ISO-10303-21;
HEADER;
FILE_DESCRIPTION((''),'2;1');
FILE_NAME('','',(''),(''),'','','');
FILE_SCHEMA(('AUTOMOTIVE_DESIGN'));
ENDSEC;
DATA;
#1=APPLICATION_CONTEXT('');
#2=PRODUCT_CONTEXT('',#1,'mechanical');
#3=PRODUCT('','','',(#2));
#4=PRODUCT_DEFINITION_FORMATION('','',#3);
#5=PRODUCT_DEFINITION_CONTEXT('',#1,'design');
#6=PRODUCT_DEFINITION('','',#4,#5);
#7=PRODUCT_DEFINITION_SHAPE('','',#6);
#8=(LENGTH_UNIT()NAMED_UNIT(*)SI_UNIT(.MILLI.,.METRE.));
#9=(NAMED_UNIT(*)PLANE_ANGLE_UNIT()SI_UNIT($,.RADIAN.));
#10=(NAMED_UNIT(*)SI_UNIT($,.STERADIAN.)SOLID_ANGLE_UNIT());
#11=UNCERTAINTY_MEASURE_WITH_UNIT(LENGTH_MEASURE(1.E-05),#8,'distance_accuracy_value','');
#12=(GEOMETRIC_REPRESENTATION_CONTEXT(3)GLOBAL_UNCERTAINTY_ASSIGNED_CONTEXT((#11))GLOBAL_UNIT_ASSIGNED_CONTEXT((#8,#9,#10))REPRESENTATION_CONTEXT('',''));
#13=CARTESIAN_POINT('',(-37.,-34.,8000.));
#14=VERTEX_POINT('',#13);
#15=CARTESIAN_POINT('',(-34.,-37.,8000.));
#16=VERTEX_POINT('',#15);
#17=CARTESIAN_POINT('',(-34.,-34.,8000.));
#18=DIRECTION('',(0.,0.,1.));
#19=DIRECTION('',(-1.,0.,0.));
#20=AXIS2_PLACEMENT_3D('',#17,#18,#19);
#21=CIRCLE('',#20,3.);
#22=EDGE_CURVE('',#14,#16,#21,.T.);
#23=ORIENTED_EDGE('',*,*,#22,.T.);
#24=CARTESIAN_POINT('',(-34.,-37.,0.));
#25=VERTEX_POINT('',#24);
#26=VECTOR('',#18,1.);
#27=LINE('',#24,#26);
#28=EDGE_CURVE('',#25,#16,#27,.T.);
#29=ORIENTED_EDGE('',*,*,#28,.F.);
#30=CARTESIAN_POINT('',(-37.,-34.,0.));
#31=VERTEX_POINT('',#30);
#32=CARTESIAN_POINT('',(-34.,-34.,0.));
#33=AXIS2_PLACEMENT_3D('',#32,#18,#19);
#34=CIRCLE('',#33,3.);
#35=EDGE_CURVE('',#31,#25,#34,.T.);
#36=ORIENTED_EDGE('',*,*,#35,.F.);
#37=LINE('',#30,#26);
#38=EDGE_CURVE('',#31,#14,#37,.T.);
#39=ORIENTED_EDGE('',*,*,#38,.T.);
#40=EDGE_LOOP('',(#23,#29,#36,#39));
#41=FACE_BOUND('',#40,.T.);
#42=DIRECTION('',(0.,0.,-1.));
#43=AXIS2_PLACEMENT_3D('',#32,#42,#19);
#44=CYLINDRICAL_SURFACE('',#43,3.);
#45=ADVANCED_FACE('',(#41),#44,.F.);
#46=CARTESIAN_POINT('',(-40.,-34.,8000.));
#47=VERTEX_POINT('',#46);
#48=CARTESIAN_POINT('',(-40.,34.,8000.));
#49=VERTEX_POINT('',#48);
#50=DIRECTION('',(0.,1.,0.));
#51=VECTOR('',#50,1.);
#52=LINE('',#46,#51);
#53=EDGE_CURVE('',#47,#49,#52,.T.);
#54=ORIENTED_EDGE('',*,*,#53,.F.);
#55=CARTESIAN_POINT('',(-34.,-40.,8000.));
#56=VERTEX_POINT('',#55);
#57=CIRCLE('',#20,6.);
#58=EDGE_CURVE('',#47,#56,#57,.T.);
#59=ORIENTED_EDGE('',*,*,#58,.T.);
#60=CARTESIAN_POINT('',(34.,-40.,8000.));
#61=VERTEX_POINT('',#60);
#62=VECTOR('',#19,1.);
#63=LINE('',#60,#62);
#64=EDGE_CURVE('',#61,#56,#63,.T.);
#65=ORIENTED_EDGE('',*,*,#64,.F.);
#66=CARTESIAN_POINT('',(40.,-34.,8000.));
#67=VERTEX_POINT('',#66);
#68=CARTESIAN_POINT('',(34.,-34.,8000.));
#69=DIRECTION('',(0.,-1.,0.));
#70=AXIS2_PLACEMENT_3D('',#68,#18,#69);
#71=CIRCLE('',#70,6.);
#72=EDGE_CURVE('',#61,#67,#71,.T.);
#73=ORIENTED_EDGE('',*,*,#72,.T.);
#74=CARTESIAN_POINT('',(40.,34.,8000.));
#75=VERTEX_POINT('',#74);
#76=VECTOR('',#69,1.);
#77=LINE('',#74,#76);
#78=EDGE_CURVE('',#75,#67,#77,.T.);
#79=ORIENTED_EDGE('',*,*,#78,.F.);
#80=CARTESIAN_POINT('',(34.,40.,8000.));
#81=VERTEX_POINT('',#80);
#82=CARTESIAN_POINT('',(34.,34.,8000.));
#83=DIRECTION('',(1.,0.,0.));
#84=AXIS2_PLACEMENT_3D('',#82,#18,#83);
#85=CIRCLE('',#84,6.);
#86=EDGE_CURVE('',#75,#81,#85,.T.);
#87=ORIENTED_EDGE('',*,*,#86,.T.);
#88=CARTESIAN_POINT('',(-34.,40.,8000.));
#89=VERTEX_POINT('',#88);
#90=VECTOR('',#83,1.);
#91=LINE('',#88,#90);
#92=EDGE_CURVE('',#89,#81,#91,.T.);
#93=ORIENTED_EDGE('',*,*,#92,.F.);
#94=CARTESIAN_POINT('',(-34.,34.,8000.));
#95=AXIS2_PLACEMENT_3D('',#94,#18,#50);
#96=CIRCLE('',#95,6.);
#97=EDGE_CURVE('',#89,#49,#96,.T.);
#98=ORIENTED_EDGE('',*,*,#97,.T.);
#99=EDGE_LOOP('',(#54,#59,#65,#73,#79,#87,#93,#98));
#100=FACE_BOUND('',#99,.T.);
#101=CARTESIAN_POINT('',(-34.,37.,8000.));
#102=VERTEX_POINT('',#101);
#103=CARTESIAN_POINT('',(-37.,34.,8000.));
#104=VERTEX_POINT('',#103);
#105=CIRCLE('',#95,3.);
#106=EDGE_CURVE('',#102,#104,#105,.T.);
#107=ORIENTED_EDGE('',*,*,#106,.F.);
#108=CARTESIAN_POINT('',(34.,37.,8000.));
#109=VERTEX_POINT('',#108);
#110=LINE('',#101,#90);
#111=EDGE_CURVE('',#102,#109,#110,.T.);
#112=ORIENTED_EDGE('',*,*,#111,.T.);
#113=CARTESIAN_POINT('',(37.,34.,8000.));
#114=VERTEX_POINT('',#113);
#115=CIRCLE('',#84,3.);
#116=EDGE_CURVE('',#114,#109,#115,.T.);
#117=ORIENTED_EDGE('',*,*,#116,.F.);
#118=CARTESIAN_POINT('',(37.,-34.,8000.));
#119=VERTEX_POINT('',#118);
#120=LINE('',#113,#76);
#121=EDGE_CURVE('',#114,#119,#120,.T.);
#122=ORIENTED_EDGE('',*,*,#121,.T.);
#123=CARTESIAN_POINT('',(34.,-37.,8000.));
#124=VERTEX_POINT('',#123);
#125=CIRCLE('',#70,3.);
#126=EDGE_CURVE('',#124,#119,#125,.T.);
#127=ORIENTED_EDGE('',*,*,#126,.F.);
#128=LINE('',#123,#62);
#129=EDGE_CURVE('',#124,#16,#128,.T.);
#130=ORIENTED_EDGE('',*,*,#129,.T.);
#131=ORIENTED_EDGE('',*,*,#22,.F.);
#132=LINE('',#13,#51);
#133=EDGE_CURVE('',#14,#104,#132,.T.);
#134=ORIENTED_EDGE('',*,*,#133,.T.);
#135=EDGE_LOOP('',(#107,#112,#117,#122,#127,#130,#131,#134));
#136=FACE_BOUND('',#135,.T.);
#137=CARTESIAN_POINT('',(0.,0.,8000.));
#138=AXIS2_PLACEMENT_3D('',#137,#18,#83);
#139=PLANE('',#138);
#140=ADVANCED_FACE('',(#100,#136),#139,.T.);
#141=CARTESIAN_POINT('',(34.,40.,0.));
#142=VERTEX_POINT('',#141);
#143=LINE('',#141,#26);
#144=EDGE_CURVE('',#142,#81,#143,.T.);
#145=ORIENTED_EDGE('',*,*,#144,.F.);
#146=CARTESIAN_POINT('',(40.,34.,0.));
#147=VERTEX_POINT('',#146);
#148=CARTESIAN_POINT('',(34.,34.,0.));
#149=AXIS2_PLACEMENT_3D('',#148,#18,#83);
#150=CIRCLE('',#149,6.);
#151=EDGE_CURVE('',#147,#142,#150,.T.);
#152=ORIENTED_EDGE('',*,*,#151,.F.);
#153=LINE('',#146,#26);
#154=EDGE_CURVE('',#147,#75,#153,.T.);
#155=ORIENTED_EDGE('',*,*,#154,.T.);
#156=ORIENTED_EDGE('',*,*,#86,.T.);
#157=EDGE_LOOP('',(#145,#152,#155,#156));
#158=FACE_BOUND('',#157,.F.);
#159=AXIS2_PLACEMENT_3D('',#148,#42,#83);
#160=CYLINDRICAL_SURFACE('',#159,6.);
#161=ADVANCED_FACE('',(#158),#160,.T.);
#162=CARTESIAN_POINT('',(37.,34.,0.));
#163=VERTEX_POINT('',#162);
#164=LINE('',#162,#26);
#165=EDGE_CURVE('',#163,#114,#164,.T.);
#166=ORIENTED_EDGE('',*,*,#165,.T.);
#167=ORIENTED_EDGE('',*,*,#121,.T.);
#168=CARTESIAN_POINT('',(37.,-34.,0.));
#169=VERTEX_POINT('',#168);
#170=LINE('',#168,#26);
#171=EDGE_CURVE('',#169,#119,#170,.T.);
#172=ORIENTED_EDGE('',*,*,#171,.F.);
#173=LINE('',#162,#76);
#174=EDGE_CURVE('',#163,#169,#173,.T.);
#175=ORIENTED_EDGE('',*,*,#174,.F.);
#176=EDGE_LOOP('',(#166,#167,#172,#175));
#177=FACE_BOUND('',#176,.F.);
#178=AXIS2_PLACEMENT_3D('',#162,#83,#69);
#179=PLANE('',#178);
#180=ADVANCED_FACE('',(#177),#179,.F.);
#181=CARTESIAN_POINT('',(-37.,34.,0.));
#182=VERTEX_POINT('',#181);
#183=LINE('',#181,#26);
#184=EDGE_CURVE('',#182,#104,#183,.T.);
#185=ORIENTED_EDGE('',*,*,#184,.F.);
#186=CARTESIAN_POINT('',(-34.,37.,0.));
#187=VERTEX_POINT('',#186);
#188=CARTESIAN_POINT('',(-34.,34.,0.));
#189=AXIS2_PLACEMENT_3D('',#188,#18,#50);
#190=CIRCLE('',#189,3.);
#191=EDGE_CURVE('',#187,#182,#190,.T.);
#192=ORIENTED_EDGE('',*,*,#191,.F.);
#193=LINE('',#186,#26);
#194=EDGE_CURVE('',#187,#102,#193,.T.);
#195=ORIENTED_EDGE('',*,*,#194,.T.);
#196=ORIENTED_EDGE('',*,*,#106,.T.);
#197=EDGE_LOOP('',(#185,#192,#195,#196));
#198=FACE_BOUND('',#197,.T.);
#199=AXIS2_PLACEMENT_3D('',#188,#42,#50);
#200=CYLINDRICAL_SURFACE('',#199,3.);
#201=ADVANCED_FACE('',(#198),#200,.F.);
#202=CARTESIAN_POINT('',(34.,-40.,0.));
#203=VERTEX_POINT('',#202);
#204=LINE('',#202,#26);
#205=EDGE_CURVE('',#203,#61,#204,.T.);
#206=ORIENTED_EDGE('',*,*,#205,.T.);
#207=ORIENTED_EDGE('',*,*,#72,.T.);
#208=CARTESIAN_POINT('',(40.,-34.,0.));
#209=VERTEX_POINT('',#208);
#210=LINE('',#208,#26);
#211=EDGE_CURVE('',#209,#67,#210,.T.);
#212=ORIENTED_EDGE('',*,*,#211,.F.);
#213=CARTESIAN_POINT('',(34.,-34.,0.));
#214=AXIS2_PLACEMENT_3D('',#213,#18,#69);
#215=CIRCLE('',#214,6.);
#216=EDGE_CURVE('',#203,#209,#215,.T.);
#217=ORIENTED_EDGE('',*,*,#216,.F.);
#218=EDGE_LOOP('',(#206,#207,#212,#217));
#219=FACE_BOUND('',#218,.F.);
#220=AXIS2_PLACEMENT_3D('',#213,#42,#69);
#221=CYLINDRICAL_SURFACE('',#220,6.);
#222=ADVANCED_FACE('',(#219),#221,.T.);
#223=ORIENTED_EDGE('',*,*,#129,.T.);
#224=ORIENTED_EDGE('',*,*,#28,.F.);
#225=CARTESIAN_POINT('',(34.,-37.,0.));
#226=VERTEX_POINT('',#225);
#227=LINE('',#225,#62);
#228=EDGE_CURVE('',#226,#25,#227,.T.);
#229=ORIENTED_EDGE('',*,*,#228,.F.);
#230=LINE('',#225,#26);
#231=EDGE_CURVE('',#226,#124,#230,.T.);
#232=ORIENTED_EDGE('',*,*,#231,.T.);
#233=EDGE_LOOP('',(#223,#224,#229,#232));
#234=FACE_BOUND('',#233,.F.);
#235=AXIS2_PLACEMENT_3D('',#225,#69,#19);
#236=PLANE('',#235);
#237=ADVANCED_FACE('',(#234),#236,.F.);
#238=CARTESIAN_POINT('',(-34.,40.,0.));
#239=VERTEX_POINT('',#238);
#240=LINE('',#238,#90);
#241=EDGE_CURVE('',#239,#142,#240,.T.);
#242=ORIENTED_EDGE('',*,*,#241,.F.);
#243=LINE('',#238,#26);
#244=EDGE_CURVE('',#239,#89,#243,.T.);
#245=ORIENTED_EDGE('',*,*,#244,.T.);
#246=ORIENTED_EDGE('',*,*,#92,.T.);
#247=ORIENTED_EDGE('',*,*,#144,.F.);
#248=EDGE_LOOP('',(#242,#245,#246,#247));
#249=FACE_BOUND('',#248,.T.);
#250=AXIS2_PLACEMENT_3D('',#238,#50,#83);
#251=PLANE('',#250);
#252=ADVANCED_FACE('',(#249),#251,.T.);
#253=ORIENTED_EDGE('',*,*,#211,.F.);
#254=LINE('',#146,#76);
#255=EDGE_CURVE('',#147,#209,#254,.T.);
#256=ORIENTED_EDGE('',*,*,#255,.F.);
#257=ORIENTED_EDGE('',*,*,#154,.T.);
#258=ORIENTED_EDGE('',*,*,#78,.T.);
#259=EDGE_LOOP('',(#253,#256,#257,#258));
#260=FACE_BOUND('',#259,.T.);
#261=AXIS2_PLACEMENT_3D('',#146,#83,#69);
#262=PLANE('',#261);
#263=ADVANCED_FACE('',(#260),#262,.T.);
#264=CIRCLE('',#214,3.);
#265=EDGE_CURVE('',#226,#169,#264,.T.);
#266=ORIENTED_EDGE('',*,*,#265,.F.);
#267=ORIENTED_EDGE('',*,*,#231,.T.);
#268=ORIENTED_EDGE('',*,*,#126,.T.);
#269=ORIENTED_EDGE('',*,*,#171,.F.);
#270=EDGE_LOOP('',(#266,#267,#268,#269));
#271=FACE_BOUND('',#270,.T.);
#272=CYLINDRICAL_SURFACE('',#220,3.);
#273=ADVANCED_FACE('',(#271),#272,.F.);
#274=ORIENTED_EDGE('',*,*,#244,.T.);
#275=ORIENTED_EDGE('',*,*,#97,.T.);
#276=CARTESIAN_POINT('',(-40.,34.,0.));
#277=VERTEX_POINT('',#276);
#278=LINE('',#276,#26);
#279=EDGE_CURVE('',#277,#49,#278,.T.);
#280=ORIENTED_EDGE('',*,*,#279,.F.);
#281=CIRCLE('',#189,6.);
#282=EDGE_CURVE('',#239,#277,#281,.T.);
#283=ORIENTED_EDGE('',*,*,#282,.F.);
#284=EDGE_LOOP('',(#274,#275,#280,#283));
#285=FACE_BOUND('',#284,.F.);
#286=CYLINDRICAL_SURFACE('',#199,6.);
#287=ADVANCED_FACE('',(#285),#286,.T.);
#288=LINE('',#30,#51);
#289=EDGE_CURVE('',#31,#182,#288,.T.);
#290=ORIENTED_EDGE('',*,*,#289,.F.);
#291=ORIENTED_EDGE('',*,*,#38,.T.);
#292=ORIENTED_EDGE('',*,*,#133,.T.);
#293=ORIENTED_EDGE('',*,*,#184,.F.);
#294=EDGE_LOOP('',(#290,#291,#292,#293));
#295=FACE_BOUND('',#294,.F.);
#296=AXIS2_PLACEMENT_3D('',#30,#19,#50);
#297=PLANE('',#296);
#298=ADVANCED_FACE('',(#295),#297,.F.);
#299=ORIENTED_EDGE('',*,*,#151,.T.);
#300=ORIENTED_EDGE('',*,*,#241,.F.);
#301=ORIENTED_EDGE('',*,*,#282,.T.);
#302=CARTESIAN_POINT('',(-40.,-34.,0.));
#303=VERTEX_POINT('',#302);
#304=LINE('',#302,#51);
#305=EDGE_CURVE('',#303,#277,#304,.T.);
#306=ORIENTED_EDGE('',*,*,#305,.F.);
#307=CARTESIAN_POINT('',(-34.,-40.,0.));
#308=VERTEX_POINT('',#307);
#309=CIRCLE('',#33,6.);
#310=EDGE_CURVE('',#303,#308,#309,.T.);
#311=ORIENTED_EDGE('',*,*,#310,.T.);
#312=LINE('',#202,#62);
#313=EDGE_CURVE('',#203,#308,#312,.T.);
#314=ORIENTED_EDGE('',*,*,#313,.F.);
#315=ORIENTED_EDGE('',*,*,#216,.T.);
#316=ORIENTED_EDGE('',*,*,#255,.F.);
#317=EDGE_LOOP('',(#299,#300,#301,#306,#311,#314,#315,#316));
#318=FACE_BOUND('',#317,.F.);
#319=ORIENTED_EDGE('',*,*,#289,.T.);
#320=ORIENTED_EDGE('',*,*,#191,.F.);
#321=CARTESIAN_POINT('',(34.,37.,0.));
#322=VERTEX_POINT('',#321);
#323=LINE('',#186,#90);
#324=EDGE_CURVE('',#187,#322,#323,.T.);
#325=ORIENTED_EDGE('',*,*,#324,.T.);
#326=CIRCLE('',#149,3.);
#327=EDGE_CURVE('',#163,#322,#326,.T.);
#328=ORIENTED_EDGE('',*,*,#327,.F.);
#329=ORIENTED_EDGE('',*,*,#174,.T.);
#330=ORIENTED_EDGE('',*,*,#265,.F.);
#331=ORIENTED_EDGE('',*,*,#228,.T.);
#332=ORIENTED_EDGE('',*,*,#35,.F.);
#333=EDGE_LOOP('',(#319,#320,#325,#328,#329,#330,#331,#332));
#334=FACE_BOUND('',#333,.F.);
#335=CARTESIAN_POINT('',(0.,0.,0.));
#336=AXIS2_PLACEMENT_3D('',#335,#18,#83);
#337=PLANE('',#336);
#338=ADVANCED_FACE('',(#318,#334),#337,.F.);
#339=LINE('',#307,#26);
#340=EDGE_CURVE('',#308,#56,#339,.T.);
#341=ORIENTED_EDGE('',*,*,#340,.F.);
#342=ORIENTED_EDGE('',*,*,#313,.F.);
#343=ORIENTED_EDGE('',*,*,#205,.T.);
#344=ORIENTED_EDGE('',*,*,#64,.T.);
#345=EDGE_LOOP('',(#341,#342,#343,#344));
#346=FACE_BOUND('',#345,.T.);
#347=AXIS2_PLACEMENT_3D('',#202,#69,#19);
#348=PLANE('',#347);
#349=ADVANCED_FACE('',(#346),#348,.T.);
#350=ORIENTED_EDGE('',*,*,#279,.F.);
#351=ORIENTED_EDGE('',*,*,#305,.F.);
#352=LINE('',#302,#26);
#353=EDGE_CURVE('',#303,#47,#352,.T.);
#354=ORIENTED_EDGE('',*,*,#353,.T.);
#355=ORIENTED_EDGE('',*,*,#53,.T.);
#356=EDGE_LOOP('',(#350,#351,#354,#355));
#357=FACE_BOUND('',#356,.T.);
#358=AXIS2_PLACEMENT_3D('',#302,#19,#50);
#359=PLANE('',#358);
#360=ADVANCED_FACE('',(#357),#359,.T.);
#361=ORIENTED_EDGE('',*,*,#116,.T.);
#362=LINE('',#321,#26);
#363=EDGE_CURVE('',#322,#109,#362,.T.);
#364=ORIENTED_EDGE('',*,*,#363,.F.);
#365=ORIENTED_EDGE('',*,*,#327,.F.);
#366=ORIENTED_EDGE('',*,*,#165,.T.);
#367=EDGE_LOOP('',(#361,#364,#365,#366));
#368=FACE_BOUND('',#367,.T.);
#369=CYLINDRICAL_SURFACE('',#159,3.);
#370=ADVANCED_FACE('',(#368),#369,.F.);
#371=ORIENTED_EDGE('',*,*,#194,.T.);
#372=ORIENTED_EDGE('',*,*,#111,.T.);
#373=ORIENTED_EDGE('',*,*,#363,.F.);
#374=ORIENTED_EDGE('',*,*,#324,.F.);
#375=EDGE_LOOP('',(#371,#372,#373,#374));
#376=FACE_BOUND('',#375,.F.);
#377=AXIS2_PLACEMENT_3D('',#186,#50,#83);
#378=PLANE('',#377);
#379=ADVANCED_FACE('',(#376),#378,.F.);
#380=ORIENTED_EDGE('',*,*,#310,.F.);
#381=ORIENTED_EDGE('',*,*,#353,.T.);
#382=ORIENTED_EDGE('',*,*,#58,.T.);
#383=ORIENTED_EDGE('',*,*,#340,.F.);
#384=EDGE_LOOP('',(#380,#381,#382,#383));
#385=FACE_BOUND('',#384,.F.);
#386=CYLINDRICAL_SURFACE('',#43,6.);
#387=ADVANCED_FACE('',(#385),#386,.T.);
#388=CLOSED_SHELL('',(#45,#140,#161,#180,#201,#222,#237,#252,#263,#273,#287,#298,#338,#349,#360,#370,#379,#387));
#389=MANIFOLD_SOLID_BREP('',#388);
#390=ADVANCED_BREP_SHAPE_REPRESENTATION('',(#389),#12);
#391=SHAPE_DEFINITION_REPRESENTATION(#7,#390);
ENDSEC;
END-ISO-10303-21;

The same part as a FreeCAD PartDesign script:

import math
import FreeCAD as App
import Part
import Sketcher
from FreeCAD import Vector

doc = App.newDocument("Part")
params = doc.addObject("Spreadsheet::Sheet", "Params")
for row, (alias, value) in enumerate([
    ("sketch1_radius", "6 mm"),
    ("sketch1_radius2", "3 mm"),
    ("pad1_length", "8000 mm"),
], start=1):
    params.set(f"A{row}", alias)
    params.set(f"B{row}", "=" + value)
    params.setAlias(f"B{row}", alias)

body = doc.addObject("PartDesign::Body", "Body")

# Sketch on XY plane
sketch1 = body.newObject("Sketcher::SketchObject", "Sketch")
sketch1.AttachmentSupport = (doc.getObject("XY_Plane"), [""])
sketch1.MapMode = "FlatFace"
sketch1.addGeometry([
    Part.LineSegment(Vector(-40, 34, 0), Vector(-40, -34, 0)),  # 0
    Part.ArcOfCircle(Part.Circle(Vector(-34, -34, 0), Vector(0, 0, 1), 6), math.radians(180), math.radians(270)),  # 1
    Part.LineSegment(Vector(-34, -40, 0), Vector(34, -40, 0)),  # 2
    Part.ArcOfCircle(Part.Circle(Vector(34, -34, 0), Vector(0, 0, 1), 6), math.radians(-90), math.radians(0)),  # 3
    Part.LineSegment(Vector(40, -34, 0), Vector(40, 34, 0)),  # 4
    Part.ArcOfCircle(Part.Circle(Vector(34, 34, 0), Vector(0, 0, 1), 6), math.radians(0), math.radians(90)),  # 5
    Part.LineSegment(Vector(34, 40, 0), Vector(-34, 40, 0)),  # 6
    Part.ArcOfCircle(Part.Circle(Vector(-34, 34, 0), Vector(0, 0, 1), 6), math.radians(90), math.radians(180)),  # 7
    Part.ArcOfCircle(Part.Circle(Vector(-34, 34, 0), Vector(0, 0, 1), 3), math.radians(90), math.radians(180)),  # 8
    Part.LineSegment(Vector(-34, 37, 0), Vector(34, 37, 0)),  # 9
    Part.ArcOfCircle(Part.Circle(Vector(34, 34, 0), Vector(0, 0, 1), 3), math.radians(0), math.radians(90)),  # 10
    Part.LineSegment(Vector(37, 34, 0), Vector(37, -34, 0)),  # 11
    Part.ArcOfCircle(Part.Circle(Vector(34, -34, 0), Vector(0, 0, 1), 3), math.radians(-90), math.radians(0)),  # 12
    Part.LineSegment(Vector(34, -37, 0), Vector(-34, -37, 0)),  # 13
    Part.ArcOfCircle(Part.Circle(Vector(-34, -34, 0), Vector(0, 0, 1), 3), math.radians(180), math.radians(270)),  # 14
    Part.LineSegment(Vector(-37, -34, 0), Vector(-37, 34, 0)),  # 15
], False)
sketch1.addConstraint([
    Sketcher.Constraint("Tangent", 0, 2, 1, 1),
    Sketcher.Constraint("Tangent", 1, 2, 2, 1),
    Sketcher.Constraint("Tangent", 2, 2, 3, 1),
    Sketcher.Constraint("Tangent", 3, 2, 4, 1),
    Sketcher.Constraint("Tangent", 4, 2, 5, 1),
    Sketcher.Constraint("Tangent", 5, 2, 6, 1),
    Sketcher.Constraint("Tangent", 6, 2, 7, 1),
    Sketcher.Constraint("Tangent", 7, 2, 0, 1),
    Sketcher.Constraint("Tangent", 8, 1, 9, 1),
    Sketcher.Constraint("Tangent", 9, 2, 10, 2),
    Sketcher.Constraint("Tangent", 10, 1, 11, 1),
    Sketcher.Constraint("Tangent", 11, 2, 12, 2),
    Sketcher.Constraint("Tangent", 12, 1, 13, 1),
    Sketcher.Constraint("Tangent", 13, 2, 14, 2),
    Sketcher.Constraint("Tangent", 14, 1, 15, 1),
    Sketcher.Constraint("Tangent", 15, 2, 8, 2),
    Sketcher.Constraint("Vertical", 0),
    Sketcher.Constraint("Horizontal", 2),
    Sketcher.Constraint("Vertical", 4),
    Sketcher.Constraint("Horizontal", 6),
    Sketcher.Constraint("Horizontal", 9),
    Sketcher.Constraint("Vertical", 11),
    Sketcher.Constraint("Horizontal", 13),
    Sketcher.Constraint("Vertical", 15),
    Sketcher.Constraint("Coincident", 8, 3, 7, 3),
    Sketcher.Constraint("Coincident", 10, 3, 5, 3),
    Sketcher.Constraint("Coincident", 12, 3, 3, 3),
    Sketcher.Constraint("Equal", 1, 3),
    Sketcher.Constraint("Equal", 3, 5),
    Sketcher.Constraint("Equal", 5, 7),
    Sketcher.Constraint("Equal", 12, 14),
    Sketcher.Constraint("Symmetric", 1, 3, 5, 3, -1, 1),
    Sketcher.Constraint("Equal", 13, 0),
    Sketcher.Constraint("Radius", 1, 6.0),
    Sketcher.Constraint("Radius", 8, 3.0),
    Sketcher.Constraint("DistanceX", 0, 2, -1, 1, 40.0),
])
sketch1.setExpression("Constraints[33]", "Params.sketch1_radius")
sketch1.setExpression("Constraints[34]", "Params.sketch1_radius2")
pad1 = body.newObject("PartDesign::Pad", "Pad")
pad1.Profile = sketch1
pad1.setExpression("Length", "Params.pad1_length")

doc.recompute()
